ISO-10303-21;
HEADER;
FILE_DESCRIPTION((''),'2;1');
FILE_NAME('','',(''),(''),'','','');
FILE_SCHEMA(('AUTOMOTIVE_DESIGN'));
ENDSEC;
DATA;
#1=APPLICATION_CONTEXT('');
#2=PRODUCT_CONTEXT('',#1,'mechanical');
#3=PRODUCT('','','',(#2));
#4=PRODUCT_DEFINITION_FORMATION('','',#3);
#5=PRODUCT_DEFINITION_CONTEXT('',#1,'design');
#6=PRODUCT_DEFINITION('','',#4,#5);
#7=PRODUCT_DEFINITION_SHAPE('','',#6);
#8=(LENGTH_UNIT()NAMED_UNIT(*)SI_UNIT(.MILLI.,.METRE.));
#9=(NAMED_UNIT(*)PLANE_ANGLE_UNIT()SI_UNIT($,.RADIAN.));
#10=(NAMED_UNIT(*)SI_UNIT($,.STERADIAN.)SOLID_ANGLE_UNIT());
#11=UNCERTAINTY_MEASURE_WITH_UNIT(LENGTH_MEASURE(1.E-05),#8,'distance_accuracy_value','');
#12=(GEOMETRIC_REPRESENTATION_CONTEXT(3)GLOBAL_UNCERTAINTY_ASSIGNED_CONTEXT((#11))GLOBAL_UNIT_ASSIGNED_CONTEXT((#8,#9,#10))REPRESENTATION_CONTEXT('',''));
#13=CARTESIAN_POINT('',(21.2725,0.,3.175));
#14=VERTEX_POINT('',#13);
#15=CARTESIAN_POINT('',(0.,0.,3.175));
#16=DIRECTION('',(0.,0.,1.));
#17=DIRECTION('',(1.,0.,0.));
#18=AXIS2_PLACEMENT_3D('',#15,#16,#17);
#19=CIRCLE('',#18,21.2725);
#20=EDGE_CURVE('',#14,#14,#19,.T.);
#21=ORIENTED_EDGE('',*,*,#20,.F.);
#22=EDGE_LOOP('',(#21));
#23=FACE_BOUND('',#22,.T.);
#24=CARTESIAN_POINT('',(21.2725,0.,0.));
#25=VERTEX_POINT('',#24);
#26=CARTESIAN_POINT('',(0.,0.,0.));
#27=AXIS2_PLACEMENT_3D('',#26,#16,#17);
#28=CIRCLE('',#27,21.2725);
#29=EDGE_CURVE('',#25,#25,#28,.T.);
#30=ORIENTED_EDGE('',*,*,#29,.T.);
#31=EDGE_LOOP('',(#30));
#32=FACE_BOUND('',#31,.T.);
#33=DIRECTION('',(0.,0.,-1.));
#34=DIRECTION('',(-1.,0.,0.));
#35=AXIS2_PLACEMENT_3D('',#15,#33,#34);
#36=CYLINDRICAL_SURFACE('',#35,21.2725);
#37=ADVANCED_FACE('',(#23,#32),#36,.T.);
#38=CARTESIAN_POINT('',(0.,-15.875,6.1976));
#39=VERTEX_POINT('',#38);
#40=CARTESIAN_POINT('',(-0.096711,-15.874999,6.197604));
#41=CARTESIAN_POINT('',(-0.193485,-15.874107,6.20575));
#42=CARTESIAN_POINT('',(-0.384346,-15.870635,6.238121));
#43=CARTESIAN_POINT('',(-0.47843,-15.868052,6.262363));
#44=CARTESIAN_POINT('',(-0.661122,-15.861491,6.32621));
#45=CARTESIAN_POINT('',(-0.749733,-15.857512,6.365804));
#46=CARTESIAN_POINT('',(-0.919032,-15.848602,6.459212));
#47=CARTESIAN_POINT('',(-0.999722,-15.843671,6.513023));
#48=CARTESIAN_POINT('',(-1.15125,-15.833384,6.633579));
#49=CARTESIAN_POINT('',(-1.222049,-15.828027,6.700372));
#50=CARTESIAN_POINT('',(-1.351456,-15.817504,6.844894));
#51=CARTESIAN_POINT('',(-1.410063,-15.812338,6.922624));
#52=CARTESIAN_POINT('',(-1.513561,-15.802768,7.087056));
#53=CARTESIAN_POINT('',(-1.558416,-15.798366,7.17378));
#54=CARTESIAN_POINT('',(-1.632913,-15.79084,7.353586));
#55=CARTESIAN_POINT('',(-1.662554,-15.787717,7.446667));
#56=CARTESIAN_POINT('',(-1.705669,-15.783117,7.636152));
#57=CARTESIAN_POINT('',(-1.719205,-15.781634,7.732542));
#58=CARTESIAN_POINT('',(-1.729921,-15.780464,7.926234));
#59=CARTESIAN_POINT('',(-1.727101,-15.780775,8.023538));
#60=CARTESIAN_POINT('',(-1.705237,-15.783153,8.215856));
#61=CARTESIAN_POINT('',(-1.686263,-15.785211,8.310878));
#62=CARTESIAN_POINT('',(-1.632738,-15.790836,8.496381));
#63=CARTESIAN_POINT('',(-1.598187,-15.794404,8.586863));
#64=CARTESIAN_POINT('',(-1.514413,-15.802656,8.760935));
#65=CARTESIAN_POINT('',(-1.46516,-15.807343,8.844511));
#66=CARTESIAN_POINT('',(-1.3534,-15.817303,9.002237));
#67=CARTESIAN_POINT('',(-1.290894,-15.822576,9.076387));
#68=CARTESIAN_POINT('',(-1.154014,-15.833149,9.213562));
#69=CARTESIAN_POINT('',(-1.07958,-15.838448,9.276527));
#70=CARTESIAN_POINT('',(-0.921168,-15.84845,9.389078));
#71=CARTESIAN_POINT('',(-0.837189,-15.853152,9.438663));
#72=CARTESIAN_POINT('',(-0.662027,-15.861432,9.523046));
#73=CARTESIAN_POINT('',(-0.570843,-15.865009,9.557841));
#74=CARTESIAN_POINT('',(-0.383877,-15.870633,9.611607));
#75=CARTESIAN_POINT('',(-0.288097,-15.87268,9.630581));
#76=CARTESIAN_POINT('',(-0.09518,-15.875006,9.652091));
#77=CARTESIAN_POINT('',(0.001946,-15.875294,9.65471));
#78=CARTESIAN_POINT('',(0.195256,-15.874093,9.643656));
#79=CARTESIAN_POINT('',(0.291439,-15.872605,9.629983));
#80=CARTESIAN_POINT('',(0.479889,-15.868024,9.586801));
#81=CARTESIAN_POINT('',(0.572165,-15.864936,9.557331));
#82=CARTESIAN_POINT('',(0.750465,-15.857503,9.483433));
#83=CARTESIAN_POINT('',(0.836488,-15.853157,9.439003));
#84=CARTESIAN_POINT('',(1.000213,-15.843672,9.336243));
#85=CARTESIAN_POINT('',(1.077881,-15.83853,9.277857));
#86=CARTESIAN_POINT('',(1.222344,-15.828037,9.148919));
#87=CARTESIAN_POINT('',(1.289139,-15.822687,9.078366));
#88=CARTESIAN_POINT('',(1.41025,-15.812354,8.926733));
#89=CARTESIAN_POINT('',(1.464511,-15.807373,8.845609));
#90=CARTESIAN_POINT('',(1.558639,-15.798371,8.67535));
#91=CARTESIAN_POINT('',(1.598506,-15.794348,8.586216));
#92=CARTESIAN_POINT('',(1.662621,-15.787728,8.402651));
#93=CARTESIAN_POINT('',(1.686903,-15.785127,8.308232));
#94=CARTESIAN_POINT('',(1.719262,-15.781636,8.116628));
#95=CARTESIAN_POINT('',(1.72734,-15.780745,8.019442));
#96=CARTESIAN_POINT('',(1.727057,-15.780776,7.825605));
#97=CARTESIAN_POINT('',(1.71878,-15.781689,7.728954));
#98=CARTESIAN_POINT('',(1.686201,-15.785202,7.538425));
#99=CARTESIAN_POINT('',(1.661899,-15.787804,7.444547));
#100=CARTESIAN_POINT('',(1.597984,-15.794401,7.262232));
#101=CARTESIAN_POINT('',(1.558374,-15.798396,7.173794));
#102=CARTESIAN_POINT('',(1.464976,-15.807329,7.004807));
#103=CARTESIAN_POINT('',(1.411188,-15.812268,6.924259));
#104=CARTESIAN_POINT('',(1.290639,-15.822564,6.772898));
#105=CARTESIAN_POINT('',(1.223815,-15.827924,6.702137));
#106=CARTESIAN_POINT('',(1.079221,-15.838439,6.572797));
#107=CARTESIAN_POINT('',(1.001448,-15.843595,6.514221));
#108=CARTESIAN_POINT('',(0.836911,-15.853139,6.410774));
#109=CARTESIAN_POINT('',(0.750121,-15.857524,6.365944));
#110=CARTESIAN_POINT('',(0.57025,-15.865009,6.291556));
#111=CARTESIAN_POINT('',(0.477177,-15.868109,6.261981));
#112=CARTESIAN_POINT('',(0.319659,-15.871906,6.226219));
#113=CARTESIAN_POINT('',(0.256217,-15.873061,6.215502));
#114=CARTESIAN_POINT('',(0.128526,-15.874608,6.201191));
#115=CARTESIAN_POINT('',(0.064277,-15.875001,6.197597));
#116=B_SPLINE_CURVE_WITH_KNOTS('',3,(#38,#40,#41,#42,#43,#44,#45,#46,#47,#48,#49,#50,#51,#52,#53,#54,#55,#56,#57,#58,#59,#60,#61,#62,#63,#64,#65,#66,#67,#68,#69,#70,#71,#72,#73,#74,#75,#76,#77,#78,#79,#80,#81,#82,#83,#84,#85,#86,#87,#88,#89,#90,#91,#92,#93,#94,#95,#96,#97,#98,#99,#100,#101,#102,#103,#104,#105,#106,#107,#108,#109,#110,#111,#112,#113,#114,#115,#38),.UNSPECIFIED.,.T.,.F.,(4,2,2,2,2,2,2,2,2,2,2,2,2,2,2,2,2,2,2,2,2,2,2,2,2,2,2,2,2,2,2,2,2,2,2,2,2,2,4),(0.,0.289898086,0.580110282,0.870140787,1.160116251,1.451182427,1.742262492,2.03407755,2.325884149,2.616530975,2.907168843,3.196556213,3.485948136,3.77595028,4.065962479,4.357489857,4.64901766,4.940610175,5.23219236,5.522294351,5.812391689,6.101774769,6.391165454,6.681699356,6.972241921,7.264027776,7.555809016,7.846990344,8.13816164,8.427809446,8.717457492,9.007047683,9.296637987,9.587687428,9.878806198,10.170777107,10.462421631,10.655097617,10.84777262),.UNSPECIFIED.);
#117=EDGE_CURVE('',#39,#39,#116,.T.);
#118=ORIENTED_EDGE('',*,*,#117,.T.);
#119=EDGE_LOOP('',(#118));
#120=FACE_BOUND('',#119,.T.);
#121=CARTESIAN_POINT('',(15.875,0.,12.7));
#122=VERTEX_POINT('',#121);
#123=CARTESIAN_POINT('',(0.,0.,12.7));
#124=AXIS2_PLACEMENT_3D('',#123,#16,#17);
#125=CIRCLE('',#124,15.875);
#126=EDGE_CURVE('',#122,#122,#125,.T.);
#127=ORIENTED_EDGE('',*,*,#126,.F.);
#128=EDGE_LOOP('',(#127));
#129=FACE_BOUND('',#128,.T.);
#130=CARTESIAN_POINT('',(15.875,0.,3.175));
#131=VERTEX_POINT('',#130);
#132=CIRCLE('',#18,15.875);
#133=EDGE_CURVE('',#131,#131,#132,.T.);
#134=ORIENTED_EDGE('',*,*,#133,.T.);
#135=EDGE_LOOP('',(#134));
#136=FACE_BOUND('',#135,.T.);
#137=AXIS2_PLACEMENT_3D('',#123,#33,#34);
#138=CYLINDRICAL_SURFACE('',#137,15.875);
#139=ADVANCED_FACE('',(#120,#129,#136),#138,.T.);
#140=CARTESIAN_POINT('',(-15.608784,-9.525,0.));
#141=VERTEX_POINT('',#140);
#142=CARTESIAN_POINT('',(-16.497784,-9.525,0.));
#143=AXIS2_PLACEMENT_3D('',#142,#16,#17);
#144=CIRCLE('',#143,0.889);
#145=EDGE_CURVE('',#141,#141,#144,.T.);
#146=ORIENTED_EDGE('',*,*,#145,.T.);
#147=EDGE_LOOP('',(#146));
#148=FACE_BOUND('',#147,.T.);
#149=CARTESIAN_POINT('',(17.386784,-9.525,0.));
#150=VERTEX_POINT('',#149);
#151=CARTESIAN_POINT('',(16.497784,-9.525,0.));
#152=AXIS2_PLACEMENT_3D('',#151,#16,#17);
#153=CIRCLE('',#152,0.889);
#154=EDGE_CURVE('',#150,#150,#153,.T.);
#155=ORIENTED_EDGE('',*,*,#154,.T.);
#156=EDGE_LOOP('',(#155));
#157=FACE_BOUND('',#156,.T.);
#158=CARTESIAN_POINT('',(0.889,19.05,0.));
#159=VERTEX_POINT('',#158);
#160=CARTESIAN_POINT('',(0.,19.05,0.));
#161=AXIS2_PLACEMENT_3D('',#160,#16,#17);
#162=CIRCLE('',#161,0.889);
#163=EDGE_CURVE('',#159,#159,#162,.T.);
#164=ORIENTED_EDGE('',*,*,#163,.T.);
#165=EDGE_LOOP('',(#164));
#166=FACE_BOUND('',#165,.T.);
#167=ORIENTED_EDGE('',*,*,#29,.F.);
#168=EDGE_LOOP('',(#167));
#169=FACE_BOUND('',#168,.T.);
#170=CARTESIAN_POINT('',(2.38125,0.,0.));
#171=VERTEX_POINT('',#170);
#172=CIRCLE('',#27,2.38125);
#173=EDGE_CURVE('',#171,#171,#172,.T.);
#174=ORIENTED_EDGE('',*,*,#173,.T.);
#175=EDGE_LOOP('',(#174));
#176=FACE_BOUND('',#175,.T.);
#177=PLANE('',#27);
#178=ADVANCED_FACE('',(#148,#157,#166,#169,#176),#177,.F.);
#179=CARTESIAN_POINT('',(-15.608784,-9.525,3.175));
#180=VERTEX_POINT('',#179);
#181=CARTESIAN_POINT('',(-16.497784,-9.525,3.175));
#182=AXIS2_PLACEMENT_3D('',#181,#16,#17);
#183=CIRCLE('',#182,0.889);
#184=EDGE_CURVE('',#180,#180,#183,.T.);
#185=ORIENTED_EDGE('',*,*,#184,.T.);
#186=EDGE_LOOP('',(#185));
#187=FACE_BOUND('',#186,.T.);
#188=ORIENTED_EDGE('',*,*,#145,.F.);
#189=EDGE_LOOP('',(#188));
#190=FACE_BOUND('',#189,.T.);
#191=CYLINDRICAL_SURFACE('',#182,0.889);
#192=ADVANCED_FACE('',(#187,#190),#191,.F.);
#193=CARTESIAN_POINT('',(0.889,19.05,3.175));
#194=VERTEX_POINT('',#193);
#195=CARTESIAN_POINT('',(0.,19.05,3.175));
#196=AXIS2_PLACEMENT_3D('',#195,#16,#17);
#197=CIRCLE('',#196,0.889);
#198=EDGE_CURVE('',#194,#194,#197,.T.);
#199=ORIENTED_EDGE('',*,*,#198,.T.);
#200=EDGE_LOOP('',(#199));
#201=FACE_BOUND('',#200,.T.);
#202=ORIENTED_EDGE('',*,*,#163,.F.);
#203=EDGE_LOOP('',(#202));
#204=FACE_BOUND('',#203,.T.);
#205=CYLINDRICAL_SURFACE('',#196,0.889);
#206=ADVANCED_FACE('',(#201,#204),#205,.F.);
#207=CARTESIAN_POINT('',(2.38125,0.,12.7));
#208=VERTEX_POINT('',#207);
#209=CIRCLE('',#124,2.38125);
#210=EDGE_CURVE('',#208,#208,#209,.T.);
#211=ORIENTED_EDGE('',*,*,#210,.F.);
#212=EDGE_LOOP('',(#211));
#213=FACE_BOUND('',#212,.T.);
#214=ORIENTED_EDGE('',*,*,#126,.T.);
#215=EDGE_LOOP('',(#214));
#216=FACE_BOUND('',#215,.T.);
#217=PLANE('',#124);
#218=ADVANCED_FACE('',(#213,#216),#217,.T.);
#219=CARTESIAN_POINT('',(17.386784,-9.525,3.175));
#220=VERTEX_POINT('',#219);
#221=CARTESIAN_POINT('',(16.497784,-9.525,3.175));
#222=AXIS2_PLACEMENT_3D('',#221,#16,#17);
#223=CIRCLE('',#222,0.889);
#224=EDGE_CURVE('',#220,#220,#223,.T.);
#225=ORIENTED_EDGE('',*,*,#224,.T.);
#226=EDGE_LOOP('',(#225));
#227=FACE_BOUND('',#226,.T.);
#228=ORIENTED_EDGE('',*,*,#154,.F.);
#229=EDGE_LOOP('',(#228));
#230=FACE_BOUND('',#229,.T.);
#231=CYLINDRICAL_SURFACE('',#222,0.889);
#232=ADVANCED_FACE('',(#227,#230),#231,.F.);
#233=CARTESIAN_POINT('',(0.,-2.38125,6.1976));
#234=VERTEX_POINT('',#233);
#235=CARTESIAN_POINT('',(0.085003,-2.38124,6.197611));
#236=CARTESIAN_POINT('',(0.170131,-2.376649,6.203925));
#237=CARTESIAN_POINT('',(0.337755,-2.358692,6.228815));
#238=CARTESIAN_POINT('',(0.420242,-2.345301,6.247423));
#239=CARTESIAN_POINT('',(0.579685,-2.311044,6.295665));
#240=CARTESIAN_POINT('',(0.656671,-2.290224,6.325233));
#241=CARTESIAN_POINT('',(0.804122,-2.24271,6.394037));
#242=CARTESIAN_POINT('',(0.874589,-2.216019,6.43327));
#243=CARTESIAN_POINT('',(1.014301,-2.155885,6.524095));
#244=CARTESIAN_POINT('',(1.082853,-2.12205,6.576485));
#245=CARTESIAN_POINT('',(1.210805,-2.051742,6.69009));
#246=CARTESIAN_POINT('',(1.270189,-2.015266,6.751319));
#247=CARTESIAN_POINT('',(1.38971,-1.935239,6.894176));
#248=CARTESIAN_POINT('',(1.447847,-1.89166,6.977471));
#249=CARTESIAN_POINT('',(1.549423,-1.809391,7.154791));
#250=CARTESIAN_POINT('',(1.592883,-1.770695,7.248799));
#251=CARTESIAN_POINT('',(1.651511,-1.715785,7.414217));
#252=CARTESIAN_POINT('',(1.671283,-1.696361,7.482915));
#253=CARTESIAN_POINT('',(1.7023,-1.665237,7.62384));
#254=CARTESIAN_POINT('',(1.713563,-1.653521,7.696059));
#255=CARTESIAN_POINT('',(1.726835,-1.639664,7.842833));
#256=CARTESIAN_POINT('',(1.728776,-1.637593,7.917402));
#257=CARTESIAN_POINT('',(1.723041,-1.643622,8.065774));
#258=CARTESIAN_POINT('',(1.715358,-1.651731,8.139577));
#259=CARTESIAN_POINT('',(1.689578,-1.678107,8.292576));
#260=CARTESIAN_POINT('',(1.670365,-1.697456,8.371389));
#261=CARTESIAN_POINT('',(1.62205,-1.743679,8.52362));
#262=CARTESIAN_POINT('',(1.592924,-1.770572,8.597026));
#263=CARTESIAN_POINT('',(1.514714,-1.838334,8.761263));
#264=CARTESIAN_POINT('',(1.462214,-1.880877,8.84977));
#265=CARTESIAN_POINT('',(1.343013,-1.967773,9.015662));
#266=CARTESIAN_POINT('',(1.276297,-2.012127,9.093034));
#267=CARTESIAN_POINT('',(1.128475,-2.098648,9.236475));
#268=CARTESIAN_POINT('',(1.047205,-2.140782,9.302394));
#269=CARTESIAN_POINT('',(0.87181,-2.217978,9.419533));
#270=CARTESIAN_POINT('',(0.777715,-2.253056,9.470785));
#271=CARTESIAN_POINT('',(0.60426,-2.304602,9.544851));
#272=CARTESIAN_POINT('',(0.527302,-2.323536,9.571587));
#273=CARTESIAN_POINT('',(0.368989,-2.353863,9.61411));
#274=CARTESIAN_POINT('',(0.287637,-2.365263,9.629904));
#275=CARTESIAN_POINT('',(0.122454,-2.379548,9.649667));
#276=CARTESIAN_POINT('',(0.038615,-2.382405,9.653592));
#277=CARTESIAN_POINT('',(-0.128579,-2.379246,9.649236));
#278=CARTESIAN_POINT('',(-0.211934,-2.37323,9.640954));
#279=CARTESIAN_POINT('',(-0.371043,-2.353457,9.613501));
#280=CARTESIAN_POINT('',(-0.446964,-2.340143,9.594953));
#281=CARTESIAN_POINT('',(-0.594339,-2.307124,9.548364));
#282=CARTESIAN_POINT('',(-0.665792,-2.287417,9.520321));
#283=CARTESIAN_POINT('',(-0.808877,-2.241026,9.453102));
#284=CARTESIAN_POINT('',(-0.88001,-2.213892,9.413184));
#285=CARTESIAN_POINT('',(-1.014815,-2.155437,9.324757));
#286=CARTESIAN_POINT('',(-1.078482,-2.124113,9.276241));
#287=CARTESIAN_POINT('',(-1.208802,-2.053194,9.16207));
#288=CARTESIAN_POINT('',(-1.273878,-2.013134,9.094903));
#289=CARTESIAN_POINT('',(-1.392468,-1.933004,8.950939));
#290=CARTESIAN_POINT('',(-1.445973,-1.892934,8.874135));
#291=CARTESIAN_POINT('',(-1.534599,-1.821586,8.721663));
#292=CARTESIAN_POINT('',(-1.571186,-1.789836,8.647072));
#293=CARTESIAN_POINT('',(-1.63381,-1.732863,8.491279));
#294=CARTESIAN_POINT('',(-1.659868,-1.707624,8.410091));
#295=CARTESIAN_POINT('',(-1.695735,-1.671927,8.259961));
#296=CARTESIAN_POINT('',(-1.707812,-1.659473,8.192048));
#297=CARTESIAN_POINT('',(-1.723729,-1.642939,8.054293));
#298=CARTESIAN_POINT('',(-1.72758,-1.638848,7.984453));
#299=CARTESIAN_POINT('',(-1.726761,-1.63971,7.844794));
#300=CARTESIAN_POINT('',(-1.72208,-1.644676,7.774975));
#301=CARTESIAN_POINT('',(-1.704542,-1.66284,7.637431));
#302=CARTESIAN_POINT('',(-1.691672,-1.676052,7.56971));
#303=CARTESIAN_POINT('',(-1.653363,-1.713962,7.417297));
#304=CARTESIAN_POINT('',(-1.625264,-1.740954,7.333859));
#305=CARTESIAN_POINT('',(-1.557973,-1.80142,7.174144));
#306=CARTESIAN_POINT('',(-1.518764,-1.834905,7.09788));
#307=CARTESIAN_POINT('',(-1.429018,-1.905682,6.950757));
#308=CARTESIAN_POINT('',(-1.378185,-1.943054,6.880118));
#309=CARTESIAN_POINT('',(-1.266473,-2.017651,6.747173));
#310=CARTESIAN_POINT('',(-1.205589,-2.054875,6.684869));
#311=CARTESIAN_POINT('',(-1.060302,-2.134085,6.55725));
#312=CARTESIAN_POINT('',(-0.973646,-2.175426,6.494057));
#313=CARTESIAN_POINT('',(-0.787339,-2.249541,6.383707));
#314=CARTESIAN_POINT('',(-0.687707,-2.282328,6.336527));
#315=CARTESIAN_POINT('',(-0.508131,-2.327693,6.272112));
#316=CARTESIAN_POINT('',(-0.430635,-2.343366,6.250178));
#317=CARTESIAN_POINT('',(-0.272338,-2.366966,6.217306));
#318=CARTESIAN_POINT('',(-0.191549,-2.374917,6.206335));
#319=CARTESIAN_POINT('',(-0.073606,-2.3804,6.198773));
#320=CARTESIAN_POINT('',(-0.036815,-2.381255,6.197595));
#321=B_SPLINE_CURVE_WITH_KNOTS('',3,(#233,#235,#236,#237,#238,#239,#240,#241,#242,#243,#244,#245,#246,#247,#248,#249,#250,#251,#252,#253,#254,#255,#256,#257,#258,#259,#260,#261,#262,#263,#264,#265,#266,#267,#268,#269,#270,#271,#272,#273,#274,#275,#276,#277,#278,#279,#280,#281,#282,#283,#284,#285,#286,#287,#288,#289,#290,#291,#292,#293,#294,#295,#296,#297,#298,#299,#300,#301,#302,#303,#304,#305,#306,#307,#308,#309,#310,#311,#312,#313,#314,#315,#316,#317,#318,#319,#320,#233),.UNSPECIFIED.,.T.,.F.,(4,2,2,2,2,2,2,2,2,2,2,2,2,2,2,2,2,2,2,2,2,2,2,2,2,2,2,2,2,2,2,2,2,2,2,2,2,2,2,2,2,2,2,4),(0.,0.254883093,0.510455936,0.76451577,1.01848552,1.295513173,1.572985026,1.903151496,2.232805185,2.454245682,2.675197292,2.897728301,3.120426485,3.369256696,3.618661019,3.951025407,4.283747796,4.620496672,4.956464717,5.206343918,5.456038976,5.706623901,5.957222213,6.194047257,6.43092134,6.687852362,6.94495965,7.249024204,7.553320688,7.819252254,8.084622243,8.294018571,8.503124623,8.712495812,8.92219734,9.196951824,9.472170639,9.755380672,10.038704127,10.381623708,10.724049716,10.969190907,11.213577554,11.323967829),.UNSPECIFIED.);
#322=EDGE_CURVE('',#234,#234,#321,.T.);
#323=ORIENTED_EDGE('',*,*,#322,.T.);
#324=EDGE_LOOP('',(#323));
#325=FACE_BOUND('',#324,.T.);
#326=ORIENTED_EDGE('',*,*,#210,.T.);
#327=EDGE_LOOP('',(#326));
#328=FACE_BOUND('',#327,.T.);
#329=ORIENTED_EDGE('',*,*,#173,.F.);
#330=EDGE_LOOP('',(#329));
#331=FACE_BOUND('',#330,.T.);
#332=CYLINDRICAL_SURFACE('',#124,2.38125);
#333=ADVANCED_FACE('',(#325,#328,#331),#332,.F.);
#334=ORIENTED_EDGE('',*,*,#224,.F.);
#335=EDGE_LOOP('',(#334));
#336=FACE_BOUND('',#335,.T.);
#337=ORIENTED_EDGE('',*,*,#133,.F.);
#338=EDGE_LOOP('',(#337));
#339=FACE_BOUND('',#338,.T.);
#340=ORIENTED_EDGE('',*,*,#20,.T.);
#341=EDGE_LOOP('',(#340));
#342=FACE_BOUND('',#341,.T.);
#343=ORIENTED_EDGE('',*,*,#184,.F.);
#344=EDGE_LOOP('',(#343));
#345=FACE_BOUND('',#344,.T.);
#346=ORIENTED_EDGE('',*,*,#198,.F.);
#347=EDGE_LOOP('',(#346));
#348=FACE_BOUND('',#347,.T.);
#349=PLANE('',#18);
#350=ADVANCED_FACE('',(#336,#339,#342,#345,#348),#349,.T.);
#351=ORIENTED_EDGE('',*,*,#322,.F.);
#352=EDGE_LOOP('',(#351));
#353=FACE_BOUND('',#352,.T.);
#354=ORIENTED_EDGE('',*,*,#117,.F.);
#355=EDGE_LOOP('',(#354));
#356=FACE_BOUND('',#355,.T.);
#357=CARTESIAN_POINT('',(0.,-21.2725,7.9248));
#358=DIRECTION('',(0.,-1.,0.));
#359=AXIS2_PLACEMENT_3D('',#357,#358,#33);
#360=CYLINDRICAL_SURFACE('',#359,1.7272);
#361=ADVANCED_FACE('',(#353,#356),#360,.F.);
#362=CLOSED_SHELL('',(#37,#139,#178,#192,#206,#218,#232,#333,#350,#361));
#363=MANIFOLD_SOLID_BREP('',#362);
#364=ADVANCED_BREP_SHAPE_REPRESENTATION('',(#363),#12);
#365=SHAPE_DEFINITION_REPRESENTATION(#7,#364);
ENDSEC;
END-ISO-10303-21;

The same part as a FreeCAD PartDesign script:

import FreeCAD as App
import Part
import Sketcher

V = App.Vector
Q = App.Units.Quantity

doc = App.newDocument("Part")
body = doc.addObject("PartDesign::Body", "Body")

# Sketch on XY plane
sketch1 = doc.addObject("Sketcher::SketchObject", "Sketch")
body.addObject(sketch1)
sketch1.AttachmentSupport = (doc.XY_Plane, [""])
sketch1.MapMode = "FlatFace"
sketch1.addGeometry(Part.Circle(V(0, 0, 0), V(0, 0, 1), 21), False)
sketch1.addConstraint(Sketcher.Constraint("Coincident", 0, 3, -1, 1))
sketch1.addConstraint(Sketcher.Constraint("Diameter", 0, Q("1.675 in")))
pad1 = doc.addObject("PartDesign::Pad", "Pad")
body.addObject(pad1)
pad1.Profile = sketch1
pad1.Length = Q("0.125 in")

# Sketch on XY plane
sketch2 = doc.addObject("Sketcher::SketchObject", "Sketch001")
body.addObject(sketch2)
sketch2.AttachmentSupport = (doc.XY_Plane, [""])
sketch2.MapMode = "FlatFace"
sketch2.AttachmentOffset = App.Placement(V(0, 0, 0.125 * 25.4), App.Rotation())
sketch2.addGeometry(Part.Circle(V(0, 0, 0), V(0, 0, 1), 16), False)
sketch2.addConstraint(Sketcher.Constraint("Coincident", 0, 3, -1, 1))
sketch2.addConstraint(Sketcher.Constraint("Diameter", 0, Q("1.25 in")))
pad2 = doc.addObject("PartDesign::Pad", "Pad001")
body.addObject(pad2)
pad2.Profile = sketch2
pad2.Length = Q("0.375 in")

# Sketch on XY plane
sketch3 = doc.addObject("Sketcher::SketchObject", "Sketch002")
body.addObject(sketch3)
sketch3.AttachmentSupport = (doc.XY_Plane, [""])
sketch3.MapMode = "FlatFace"
sketch3.AttachmentOffset = App.Placement(V(0, 0, 0.5 * 25.4), App.Rotation())
sketch3.addGeometry(Part.Circle(V(0, 0, 0), V(0, 0, 1), 2.4), False)
sketch3.addConstraint(Sketcher.Constraint("Coincident", 0, 3, -1, 1))
sketch3.addConstraint(Sketcher.Constraint("Diameter", 0, Q("0.1875 in")))
doc.recompute()
hole = doc.addObject("PartDesign::Hole", "Hole")
body.addObject(hole)
hole.Profile = sketch3
hole.ThreadType = "None"
hole.Diameter = Q("0.1875 in")
hole.DepthType = "ThroughAll"

# Sketch on XY plane
sketch4 = doc.addObject("Sketcher::SketchObject", "Sketch003")
body.addObject(sketch4)
sketch4.AttachmentSupport = (doc.XY_Plane, [""])
sketch4.MapMode = "FlatFace"
sketch4.AttachmentOffset = App.Placement(V(0, 0, 0.125 * 25.4), App.Rotation())
sketch4.addGeometry(Part.Circle(V(0, 19.1, 0), V(0, 0, 1), 0.9), False)
sketch4.addConstraint(Sketcher.Constraint("PointOnObject", 0, 3, -2))
sketch4.addConstraint(Sketcher.Constraint("Diameter", 0, Q("0.07 in")))
sketch4.addConstraint(Sketcher.Constraint("DistanceY", -1, 1, 0, 3, Q("0.75 in")))
doc.recompute()
hole2 = doc.addObject("PartDesign::Hole", "Hole001")
body.addObject(hole2)
hole2.Profile = sketch4
hole2.ThreadType = "None"
hole2.Diameter = Q("0.07 in")
hole2.DepthType = "ThroughAll"
doc.recompute()

polarpattern = doc.addObject("PartDesign::PolarPattern", "PolarPattern")
body.addObject(polarpattern)
polarpattern.Originals = [hole2]
polarpattern.Axis = (doc.Z_Axis, [""])
polarpattern.Angle = 360
polarpattern.Occurrences = 3
body.Tip = polarpattern

# Sketch on XZ plane
sketch5 = doc.addObject("Sketcher::SketchObject", "Sketch004")
body.addObject(sketch5)
sketch5.AttachmentSupport = (doc.XZ_Plane, [""])
sketch5.MapMode = "FlatFace"
sketch5.AttachmentOffset = App.Placement(V(0, 0, 0.8375 * 25.4), App.Rotation())
sketch5.addGeometry(Part.Circle(V(0, 7.9, 0), V(0, 0, 1), 1.7), False)
sketch5.addConstraint(Sketcher.Constraint("PointOnObject", 0, 3, -2))
sketch5.addConstraint(Sketcher.Constraint("Diameter", 0, Q("0.136 in")))
sketch5.addConstraint(Sketcher.Constraint("DistanceY", -1, 1, 0, 3, Q("0.312 in")))
doc.recompute()
hole3 = doc.addObject("PartDesign::Hole", "Hole002")
body.addObject(hole3)
hole3.Profile = sketch5
hole3.ThreadType = "None"
hole3.Diameter = Q("0.136 in")
hole3.DepthType = "Dimension"
hole3.Depth = 21.2715
hole3.DrillPoint = "Angled"
hole3.DrillPointAngle = 118

doc.recompute()
